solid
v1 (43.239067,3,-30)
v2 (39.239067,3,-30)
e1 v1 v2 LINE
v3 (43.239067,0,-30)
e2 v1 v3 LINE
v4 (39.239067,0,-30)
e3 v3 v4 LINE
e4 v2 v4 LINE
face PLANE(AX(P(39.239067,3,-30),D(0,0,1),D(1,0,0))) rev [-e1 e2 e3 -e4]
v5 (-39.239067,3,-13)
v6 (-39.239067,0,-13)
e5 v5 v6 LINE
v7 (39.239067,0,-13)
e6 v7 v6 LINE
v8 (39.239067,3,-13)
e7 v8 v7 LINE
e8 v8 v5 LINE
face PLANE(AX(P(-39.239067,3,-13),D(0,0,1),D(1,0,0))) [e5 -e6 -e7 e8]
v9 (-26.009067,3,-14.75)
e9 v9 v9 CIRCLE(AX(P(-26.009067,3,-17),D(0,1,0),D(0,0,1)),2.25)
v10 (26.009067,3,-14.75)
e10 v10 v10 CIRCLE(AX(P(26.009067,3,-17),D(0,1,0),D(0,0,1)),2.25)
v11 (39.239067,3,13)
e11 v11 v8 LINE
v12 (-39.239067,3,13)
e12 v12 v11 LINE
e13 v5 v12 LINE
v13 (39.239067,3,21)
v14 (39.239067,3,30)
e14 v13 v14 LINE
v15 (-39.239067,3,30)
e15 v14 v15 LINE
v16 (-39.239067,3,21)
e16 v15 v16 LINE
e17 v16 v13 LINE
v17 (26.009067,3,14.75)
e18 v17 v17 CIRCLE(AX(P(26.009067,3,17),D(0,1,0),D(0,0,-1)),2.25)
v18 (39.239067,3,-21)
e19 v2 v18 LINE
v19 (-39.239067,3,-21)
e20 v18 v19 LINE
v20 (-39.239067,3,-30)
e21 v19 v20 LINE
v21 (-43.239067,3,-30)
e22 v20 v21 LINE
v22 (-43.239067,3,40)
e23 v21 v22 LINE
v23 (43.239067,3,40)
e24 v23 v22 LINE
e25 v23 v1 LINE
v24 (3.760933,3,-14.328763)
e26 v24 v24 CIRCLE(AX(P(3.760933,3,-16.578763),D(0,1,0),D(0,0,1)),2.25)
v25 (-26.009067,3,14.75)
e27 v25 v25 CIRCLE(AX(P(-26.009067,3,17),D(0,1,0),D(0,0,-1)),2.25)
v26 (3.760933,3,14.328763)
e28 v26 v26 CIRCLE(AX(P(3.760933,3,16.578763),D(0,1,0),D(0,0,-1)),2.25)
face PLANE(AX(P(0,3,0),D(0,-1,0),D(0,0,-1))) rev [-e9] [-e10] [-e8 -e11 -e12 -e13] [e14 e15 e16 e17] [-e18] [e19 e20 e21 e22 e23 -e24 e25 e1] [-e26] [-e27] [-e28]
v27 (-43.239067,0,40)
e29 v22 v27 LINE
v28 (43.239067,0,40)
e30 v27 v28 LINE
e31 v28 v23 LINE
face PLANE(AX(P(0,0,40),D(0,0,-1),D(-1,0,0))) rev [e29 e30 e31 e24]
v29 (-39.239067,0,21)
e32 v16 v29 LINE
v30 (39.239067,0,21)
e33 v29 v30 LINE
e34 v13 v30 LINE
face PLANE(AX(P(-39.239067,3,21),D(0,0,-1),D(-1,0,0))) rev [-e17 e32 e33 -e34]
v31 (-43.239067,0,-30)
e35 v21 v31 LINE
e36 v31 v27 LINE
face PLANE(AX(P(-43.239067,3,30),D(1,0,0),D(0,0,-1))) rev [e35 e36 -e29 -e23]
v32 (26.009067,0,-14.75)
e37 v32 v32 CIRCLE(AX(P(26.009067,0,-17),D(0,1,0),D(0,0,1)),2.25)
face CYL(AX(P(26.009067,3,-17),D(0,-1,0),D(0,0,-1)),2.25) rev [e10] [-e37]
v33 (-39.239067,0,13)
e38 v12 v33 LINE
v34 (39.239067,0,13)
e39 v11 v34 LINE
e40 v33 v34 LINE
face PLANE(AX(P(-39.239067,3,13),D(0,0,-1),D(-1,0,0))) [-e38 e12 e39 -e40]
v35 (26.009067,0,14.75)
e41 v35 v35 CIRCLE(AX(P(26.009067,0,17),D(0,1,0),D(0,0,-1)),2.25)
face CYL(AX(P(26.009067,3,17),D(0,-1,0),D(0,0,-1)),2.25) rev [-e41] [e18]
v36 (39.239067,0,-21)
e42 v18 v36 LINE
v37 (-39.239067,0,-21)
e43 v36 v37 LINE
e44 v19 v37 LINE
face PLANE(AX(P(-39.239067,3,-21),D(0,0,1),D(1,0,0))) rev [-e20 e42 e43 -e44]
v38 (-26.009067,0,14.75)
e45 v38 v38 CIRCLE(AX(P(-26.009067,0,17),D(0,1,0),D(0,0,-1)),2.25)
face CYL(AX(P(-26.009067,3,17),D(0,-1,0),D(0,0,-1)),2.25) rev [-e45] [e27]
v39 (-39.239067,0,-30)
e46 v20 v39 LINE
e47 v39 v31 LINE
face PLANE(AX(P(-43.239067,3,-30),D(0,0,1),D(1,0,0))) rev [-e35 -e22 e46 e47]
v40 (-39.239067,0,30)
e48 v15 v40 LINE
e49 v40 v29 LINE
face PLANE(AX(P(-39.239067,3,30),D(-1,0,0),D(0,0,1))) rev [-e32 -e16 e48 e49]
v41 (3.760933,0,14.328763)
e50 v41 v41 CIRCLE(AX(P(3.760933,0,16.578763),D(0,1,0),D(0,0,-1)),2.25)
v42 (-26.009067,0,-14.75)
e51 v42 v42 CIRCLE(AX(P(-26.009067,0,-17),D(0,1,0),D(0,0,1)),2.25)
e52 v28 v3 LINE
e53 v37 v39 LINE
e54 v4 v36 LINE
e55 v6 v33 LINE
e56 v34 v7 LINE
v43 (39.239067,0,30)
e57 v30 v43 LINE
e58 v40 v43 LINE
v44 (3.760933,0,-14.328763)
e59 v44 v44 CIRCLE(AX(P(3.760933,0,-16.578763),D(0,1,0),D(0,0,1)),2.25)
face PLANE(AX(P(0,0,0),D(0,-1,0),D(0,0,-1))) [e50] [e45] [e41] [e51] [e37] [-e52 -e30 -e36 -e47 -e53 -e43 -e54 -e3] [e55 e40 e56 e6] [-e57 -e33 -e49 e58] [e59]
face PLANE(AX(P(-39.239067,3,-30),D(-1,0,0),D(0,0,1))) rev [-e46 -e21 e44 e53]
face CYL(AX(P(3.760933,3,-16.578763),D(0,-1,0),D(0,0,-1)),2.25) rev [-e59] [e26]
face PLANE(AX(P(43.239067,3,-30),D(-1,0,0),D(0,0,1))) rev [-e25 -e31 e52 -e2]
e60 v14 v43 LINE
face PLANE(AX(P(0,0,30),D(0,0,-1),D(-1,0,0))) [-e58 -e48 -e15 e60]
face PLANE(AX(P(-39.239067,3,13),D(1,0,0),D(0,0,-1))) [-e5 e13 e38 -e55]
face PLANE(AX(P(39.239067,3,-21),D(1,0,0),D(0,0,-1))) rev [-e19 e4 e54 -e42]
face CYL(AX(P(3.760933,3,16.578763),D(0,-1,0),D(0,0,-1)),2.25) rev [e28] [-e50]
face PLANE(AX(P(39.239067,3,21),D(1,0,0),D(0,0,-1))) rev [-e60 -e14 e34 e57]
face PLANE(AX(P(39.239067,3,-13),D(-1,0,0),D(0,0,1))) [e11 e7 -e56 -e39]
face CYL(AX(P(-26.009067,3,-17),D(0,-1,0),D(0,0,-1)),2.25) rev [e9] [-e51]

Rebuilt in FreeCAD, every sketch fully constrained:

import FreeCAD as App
import Part
import Sketcher
from FreeCAD import Vector

doc = App.newDocument("Part")
params = doc.addObject("Spreadsheet::Sheet", "Params")
for row, (alias, value) in enumerate([
    ("sketch1_diameter", "4.5 mm"),
    ("sketch1_width", "4 mm"),
    ("sketch1_height", "60 mm"),
    ("sketch1_height2", "9 mm"),
    ("sketch1_height3", "26 mm"),
    ("pad1_length", "3 mm"),
    ("sketch2_height", "3 mm"),
    ("pad2_length", "10 mm"),
], start=1):
    params.set(f"A{row}", alias)
    params.set(f"B{row}", "=" + value)
    params.setAlias(f"B{row}", alias)

body = doc.addObject("PartDesign::Body", "Body")

# Sketch on XZ plane
sketch1 = doc.addObject("Sketcher::SketchObject", "Sketch")
body.addObject(sketch1)
sketch1.AttachmentSupport = (doc.XZ_Plane, [""])
sketch1.MapMode = "FlatFace"
sketch1.addGeometry([
    Part.LineSegment(Vector(-43.2, -30, 0), Vector(-43.2, 30, 0)),  # 0
    Part.LineSegment(Vector(-43.2, 30, 0), Vector(-39.2, 30, 0)),  # 1
    Part.LineSegment(Vector(-39.2, 30, 0), Vector(-39.2, 21, 0)),  # 2
    Part.LineSegment(Vector(-39.2, 21, 0), Vector(39.2, 21, 0)),  # 3
    Part.LineSegment(Vector(39.2, 21, 0), Vector(39.2, 30, 0)),  # 4
    Part.LineSegment(Vector(39.2, 30, 0), Vector(43.2, 30, 0)),  # 5
    Part.LineSegment(Vector(43.2, 30, 0), Vector(43.2, -30, 0)),  # 6
    Part.LineSegment(Vector(43.2, -30, 0), Vector(39.2, -30, 0)),  # 7
    Part.LineSegment(Vector(39.2, -30, 0), Vector(39.2, -21, 0)),  # 8
    Part.LineSegment(Vector(39.2, -21, 0), Vector(-39.2, -21, 0)),  # 9
    Part.LineSegment(Vector(-39.2, -21, 0), Vector(-39.2, -30, 0)),  # 10
    Part.LineSegment(Vector(-39.2, -30, 0), Vector(-43.2, -30, 0)),  # 11
    Part.Circle(Vector(26, 17, 0), Vector(0, 0, 1), 2.2),  # 12
    Part.Circle(Vector(3.8, 16.6, 0), Vector(0, 0, 1), 2.2),  # 13
    Part.Circle(Vector(-26, 17, 0), Vector(0, 0, 1), 2.2),  # 14
    Part.LineSegment(Vector(-39.2, 13, 0), Vector(-39.2, -13, 0)),  # 15
    Part.LineSegment(Vector(-39.2, -13, 0), Vector(39.2, -13, 0)),  # 16
    Part.LineSegment(Vector(39.2, -13, 0), Vector(39.2, 13, 0)),  # 17
    Part.LineSegment(Vector(39.2, 13, 0), Vector(-39.2, 13, 0)),  # 18
    Part.Circle(Vector(26, -17, 0), Vector(0, 0, 1), 2.2),  # 19
    Part.Circle(Vector(3.8, -16.6, 0), Vector(0, 0, 1), 2.2),  # 20
    Part.Circle(Vector(-26, -17, 0), Vector(0, 0, 1), 2.2),  # 21
], False)
sketch1.addConstraint([
    Sketcher.Constraint("Coincident", 0, 2, 1, 1),
    Sketcher.Constraint("Coincident", 1, 2, 2, 1),
    Sketcher.Constraint("Coincident", 2, 2, 3, 1),
    Sketcher.Constraint("Coincident", 3, 2, 4, 1),
    Sketcher.Constraint("Coincident", 4, 2, 5, 1),
    Sketcher.Constraint("Coincident", 5, 2, 6, 1),
    Sketcher.Constraint("Coincident", 6, 2, 7, 1),
    Sketcher.Constraint("Coincident", 7, 2, 8, 1),
    Sketcher.Constraint("Coincident", 8, 2, 9, 1),
    Sketcher.Constraint("Coincident", 9, 2, 10, 1),
    Sketcher.Constraint("Coincident", 10, 2, 11, 1),
    Sketcher.Constraint("Coincident", 11, 2, 0, 1),
    Sketcher.Constraint("Coincident", 15, 2, 16, 1),
    Sketcher.Constraint("Coincident", 16, 2, 17, 1),
    Sketcher.Constraint("Coincident", 17, 2, 18, 1),
    Sketcher.Constraint("Coincident", 18, 2, 15, 1),
    Sketcher.Constraint("Vertical", 0),
    Sketcher.Constraint("Horizontal", 1),
    Sketcher.Constraint("Vertical", 2),
    Sketcher.Constraint("Horizontal", 3),
    Sketcher.Constraint("Vertical", 4),
    Sketcher.Constraint("Horizontal", 5),
    Sketcher.Constraint("Vertical", 6),
    Sketcher.Constraint("Horizontal", 7),
    Sketcher.Constraint("Vertical", 8),
    Sketcher.Constraint("Horizontal", 9),
    Sketcher.Constraint("Vertical", 10),
    Sketcher.Constraint("Horizontal", 11),
    Sketcher.Constraint("Vertical", 15),
    Sketcher.Constraint("Horizontal", 16),
    Sketcher.Constraint("Vertical", 17),
    Sketcher.Constraint("Horizontal", 18),
    Sketcher.Constraint("Equal", 12, 13),
    Sketcher.Constraint("Equal", 13, 14),
    Sketcher.Constraint("Equal", 14, 19),
    Sketcher.Constraint("Equal", 19, 20),
    Sketcher.Constraint("Equal", 20, 21),
    Sketcher.Constraint("Symmetric", 14, 3, 19, 3, -1, 1),
    Sketcher.Constraint("Symmetric", 12, 3, 21, 3, -1, 1),
    Sketcher.Constraint("Symmetric", 0, 2, 6, 2, -1, 1),
    Sketcher.Constraint("Symmetric", 2, 2, 8, 2, -1, 1),
    Sketcher.Constraint("Symmetric", 4, 2, 10, 2, -1, 1),
    Sketcher.Constraint("Symmetric", 15, 2, 17, 2, -1, 1),
    Sketcher.Constraint("Symmetric", 12, 3, 14, 3, -2),
    Sketcher.Constraint("Symmetric", 1, 2, 4, 2, -2),
    Sketcher.Constraint("Symmetric", 13, 3, 20, 3, -1),
    Sketcher.Constraint("Vertical", 10, 2, 15, 2),
    Sketcher.Constraint("Diameter", 12, 4.5),
    Sketcher.Constraint("DistanceX", 1, 1, 1, 2, 4.0),
    Sketcher.Constraint("DistanceY", 0, 1, 0, 2, 60.0),
    Sketcher.Constraint("DistanceY", 2, 2, 2, 1, 9.0),
    Sketcher.Constraint("DistanceY", 15, 2, 15, 1, 26.0),
    Sketcher.Constraint("DistanceY", -1, 1, 12, 3, 17.0),
    Sketcher.Constraint("DistanceX", 0, 2, 13, 3, 47.0),
    Sketcher.Constraint("DistanceX", 14, 3, 13, 3, 29.77),
    Sketcher.Constraint("DistanceX", 3, 1, 3, 2, 78.478134),
    Sketcher.Constraint("DistanceY", -1, 1, 13, 3, 16.578763),
])
sketch1.setExpression("Constraints[47]", "Params.sketch1_diameter")
sketch1.setExpression("Constraints[48]", "Params.sketch1_width")
sketch1.setExpression("Constraints[49]", "Params.sketch1_height")
sketch1.setExpression("Constraints[50]", "Params.sketch1_height2")
sketch1.setExpression("Constraints[51]", "Params.sketch1_height3")
pad1 = doc.addObject("PartDesign::Pad", "Pad")
body.addObject(pad1)
pad1.Profile = sketch1
pad1.setExpression("Length", "Params.pad1_length")
pad1.Reversed = True

# Sketch on XY plane
sketch2 = doc.addObject("Sketcher::SketchObject", "Sketch001")
body.addObject(sketch2)
sketch2.AttachmentSupport = (doc.XY_Plane, [""])
sketch2.MapMode = "FlatFace"
sketch2.AttachmentOffset = App.Placement(Vector(0, 0, 30), App.Rotation())
sketch2.addGeometry([
    Part.LineSegment(Vector(-43.2, 3, 0), Vector(-43.2, 0, 0)),
    Part.LineSegment(Vector(-43.2, 0, 0), Vector(43.2, 0, 0)),
    Part.LineSegment(Vector(43.2, 0, 0), Vector(43.2, 3, 0)),
    Part.LineSegment(Vector(43.2, 3, 0), Vector(-43.2, 3, 0)),
], False)
sketch2.addConstraint([
    Sketcher.Constraint("Coincident", 0, 2, 1, 1),
    Sketcher.Constraint("Coincident", 1, 2, 2, 1),
    Sketcher.Constraint("Coincident", 2, 2, 3, 1),
    Sketcher.Constraint("Coincident", 3, 2, 0, 1),
    Sketcher.Constraint("Vertical", 0),
    Sketcher.Constraint("Horizontal", 1),
    Sketcher.Constraint("Vertical", 2),
    Sketcher.Constraint("Horizontal", 3),
    Sketcher.Constraint("Symmetric", 0, 2, 1, 2, -1, 1),
    Sketcher.Constraint("DistanceY", 0, 2, 0, 1, 3.0),
    Sketcher.Constraint("DistanceX", 1, 1, 1, 2, 86.478134),
])
sketch2.setExpression("Constraints[9]", "Params.sketch2_height")
pad2 = doc.addObject("PartDesign::Pad", "Pad001")
body.addObject(pad2)
pad2.Profile = sketch2
pad2.setExpression("Length", "Params.pad2_length")

doc.recompute()
